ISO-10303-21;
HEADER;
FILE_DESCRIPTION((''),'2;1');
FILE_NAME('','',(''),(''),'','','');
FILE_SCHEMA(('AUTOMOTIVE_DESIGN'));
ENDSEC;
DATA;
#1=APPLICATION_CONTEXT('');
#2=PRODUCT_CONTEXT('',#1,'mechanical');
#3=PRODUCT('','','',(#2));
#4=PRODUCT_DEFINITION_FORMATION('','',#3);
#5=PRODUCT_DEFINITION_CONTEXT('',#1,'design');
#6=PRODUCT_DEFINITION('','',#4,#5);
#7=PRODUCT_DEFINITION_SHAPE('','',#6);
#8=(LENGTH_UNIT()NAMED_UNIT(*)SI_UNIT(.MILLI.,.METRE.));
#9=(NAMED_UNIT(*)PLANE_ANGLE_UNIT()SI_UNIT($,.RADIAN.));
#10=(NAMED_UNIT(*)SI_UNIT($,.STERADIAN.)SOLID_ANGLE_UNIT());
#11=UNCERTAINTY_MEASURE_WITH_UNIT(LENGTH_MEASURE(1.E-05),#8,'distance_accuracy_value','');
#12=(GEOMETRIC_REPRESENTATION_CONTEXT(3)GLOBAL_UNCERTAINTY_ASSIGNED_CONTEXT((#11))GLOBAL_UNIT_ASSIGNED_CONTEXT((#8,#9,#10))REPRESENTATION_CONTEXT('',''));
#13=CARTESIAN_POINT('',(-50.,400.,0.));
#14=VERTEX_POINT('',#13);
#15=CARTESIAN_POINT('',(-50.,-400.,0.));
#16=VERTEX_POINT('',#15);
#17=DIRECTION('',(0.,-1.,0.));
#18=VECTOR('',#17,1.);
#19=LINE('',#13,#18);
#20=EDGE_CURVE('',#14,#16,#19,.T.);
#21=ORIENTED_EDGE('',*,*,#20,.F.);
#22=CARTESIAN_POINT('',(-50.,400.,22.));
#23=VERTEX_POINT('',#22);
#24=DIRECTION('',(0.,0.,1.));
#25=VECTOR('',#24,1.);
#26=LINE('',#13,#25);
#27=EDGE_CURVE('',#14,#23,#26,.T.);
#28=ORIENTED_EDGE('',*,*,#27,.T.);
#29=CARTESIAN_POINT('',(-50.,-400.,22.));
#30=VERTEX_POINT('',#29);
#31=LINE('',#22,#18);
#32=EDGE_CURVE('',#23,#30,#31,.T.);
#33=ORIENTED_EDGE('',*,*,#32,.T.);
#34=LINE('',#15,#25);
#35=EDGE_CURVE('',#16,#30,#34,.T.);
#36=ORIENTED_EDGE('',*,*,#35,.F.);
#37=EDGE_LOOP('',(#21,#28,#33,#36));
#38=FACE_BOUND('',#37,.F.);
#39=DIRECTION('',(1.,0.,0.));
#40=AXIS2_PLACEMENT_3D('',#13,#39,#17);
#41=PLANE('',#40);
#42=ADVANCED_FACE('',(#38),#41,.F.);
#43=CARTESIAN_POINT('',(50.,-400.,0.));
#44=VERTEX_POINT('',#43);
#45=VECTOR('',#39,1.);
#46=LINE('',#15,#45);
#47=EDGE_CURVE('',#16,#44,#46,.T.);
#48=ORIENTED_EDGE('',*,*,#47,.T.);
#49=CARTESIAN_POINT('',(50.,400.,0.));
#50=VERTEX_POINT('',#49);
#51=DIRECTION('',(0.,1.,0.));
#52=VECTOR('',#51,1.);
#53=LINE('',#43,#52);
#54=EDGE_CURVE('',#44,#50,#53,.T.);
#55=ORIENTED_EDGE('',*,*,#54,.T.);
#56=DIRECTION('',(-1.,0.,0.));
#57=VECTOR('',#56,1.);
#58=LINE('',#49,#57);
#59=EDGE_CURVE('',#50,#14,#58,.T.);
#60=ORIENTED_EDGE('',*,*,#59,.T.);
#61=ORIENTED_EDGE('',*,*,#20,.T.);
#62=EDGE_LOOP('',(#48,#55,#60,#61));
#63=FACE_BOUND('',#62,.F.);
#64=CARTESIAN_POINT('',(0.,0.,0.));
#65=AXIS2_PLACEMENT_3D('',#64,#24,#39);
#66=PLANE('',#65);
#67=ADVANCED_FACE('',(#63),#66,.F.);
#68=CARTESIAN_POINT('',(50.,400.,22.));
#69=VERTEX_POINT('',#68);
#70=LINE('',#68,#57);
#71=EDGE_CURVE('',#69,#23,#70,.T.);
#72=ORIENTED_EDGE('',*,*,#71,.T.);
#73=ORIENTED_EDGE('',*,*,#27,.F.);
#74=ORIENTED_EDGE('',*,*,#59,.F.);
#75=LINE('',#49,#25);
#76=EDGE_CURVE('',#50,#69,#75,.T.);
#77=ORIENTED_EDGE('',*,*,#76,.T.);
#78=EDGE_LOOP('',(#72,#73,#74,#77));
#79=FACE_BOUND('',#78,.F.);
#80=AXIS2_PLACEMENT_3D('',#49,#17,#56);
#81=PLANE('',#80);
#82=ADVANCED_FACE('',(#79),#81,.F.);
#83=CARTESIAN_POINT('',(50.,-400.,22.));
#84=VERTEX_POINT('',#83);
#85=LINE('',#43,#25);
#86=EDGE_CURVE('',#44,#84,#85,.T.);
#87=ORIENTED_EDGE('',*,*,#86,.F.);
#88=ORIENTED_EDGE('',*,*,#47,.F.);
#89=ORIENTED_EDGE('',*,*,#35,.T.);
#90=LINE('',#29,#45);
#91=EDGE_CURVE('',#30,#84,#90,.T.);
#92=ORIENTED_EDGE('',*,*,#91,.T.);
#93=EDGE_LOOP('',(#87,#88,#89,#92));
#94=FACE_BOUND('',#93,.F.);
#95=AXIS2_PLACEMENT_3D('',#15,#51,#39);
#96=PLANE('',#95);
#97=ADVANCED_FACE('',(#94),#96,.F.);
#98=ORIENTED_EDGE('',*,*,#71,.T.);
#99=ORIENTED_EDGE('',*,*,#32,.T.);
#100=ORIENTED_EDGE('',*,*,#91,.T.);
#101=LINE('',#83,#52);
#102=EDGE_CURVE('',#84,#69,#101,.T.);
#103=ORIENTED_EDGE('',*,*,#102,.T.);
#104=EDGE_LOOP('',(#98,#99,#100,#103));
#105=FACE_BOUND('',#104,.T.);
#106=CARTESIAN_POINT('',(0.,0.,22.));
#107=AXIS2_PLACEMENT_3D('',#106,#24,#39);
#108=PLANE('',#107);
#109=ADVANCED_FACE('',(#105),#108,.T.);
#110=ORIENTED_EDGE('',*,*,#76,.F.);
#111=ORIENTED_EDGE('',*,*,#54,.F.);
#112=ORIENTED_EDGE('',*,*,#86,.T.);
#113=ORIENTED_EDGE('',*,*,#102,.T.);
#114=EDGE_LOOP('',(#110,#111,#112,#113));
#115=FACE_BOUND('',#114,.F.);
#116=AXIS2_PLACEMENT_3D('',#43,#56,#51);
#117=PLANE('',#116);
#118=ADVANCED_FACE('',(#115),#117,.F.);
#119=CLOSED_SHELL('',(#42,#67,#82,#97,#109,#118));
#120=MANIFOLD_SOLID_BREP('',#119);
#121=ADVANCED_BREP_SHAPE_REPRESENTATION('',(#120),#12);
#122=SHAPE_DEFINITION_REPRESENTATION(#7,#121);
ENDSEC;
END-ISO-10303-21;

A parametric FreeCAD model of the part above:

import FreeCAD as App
import Part
import Sketcher
from FreeCAD import Vector
Q = App.Units.Quantity

doc = App.newDocument("Part")
body = doc.addObject("PartDesign::Body", "Body")

sketch1 = doc.addObject("Sketcher::SketchObject", "Sketch")
body.addObject(sketch1)
sketch1.AttachmentSupport = (doc.XY_Plane, [""])
sketch1.MapMode = "FlatFace"
sketch1.addGeometry(Part.LineSegment(Vector(-50, 400, 0), Vector(-50, -400, 0)), False)
sketch1.addGeometry(Part.LineSegment(Vector(-50, -400, 0), Vector(50, -400, 0)), False)
sketch1.addGeometry(Part.LineSegment(Vector(50, -400, 0), Vector(50, 400, 0)), False)
sketch1.addGeometry(Part.LineSegment(Vector(50, 400, 0), Vector(-50, 400, 0)), False)
sketch1.addConstraint(Sketcher.Constraint("Coincident", 0, 2, 1, 1))
sketch1.addConstraint(Sketcher.Constraint("Coincident", 1, 2, 2, 1))
sketch1.addConstraint(Sketcher.Constraint("Coincident", 2, 2, 3, 1))
sketch1.addConstraint(Sketcher.Constraint("Coincident", 3, 2, 0, 1))
sketch1.addConstraint(Sketcher.Constraint("Vertical", 0))
sketch1.addConstraint(Sketcher.Constraint("Horizontal", 1))
sketch1.addConstraint(Sketcher.Constraint("Vertical", 2))
sketch1.addConstraint(Sketcher.Constraint("Horizontal", 3))
sketch1.addConstraint(Sketcher.Constraint("Symmetric", 0, 2, 2, 2, -1, 1))
sketch1.addConstraint(Sketcher.Constraint("DistanceX", 0, 2, -1, 1, Q("50 mm")))
sketch1.addConstraint(Sketcher.Constraint("DistanceY", 0, 2, 0, 1, Q("800 mm")))
pad1 = doc.addObject("PartDesign::Pad", "Pad")
body.addObject(pad1)
pad1.Profile = sketch1
pad1.Length = 22

doc.recompute()
